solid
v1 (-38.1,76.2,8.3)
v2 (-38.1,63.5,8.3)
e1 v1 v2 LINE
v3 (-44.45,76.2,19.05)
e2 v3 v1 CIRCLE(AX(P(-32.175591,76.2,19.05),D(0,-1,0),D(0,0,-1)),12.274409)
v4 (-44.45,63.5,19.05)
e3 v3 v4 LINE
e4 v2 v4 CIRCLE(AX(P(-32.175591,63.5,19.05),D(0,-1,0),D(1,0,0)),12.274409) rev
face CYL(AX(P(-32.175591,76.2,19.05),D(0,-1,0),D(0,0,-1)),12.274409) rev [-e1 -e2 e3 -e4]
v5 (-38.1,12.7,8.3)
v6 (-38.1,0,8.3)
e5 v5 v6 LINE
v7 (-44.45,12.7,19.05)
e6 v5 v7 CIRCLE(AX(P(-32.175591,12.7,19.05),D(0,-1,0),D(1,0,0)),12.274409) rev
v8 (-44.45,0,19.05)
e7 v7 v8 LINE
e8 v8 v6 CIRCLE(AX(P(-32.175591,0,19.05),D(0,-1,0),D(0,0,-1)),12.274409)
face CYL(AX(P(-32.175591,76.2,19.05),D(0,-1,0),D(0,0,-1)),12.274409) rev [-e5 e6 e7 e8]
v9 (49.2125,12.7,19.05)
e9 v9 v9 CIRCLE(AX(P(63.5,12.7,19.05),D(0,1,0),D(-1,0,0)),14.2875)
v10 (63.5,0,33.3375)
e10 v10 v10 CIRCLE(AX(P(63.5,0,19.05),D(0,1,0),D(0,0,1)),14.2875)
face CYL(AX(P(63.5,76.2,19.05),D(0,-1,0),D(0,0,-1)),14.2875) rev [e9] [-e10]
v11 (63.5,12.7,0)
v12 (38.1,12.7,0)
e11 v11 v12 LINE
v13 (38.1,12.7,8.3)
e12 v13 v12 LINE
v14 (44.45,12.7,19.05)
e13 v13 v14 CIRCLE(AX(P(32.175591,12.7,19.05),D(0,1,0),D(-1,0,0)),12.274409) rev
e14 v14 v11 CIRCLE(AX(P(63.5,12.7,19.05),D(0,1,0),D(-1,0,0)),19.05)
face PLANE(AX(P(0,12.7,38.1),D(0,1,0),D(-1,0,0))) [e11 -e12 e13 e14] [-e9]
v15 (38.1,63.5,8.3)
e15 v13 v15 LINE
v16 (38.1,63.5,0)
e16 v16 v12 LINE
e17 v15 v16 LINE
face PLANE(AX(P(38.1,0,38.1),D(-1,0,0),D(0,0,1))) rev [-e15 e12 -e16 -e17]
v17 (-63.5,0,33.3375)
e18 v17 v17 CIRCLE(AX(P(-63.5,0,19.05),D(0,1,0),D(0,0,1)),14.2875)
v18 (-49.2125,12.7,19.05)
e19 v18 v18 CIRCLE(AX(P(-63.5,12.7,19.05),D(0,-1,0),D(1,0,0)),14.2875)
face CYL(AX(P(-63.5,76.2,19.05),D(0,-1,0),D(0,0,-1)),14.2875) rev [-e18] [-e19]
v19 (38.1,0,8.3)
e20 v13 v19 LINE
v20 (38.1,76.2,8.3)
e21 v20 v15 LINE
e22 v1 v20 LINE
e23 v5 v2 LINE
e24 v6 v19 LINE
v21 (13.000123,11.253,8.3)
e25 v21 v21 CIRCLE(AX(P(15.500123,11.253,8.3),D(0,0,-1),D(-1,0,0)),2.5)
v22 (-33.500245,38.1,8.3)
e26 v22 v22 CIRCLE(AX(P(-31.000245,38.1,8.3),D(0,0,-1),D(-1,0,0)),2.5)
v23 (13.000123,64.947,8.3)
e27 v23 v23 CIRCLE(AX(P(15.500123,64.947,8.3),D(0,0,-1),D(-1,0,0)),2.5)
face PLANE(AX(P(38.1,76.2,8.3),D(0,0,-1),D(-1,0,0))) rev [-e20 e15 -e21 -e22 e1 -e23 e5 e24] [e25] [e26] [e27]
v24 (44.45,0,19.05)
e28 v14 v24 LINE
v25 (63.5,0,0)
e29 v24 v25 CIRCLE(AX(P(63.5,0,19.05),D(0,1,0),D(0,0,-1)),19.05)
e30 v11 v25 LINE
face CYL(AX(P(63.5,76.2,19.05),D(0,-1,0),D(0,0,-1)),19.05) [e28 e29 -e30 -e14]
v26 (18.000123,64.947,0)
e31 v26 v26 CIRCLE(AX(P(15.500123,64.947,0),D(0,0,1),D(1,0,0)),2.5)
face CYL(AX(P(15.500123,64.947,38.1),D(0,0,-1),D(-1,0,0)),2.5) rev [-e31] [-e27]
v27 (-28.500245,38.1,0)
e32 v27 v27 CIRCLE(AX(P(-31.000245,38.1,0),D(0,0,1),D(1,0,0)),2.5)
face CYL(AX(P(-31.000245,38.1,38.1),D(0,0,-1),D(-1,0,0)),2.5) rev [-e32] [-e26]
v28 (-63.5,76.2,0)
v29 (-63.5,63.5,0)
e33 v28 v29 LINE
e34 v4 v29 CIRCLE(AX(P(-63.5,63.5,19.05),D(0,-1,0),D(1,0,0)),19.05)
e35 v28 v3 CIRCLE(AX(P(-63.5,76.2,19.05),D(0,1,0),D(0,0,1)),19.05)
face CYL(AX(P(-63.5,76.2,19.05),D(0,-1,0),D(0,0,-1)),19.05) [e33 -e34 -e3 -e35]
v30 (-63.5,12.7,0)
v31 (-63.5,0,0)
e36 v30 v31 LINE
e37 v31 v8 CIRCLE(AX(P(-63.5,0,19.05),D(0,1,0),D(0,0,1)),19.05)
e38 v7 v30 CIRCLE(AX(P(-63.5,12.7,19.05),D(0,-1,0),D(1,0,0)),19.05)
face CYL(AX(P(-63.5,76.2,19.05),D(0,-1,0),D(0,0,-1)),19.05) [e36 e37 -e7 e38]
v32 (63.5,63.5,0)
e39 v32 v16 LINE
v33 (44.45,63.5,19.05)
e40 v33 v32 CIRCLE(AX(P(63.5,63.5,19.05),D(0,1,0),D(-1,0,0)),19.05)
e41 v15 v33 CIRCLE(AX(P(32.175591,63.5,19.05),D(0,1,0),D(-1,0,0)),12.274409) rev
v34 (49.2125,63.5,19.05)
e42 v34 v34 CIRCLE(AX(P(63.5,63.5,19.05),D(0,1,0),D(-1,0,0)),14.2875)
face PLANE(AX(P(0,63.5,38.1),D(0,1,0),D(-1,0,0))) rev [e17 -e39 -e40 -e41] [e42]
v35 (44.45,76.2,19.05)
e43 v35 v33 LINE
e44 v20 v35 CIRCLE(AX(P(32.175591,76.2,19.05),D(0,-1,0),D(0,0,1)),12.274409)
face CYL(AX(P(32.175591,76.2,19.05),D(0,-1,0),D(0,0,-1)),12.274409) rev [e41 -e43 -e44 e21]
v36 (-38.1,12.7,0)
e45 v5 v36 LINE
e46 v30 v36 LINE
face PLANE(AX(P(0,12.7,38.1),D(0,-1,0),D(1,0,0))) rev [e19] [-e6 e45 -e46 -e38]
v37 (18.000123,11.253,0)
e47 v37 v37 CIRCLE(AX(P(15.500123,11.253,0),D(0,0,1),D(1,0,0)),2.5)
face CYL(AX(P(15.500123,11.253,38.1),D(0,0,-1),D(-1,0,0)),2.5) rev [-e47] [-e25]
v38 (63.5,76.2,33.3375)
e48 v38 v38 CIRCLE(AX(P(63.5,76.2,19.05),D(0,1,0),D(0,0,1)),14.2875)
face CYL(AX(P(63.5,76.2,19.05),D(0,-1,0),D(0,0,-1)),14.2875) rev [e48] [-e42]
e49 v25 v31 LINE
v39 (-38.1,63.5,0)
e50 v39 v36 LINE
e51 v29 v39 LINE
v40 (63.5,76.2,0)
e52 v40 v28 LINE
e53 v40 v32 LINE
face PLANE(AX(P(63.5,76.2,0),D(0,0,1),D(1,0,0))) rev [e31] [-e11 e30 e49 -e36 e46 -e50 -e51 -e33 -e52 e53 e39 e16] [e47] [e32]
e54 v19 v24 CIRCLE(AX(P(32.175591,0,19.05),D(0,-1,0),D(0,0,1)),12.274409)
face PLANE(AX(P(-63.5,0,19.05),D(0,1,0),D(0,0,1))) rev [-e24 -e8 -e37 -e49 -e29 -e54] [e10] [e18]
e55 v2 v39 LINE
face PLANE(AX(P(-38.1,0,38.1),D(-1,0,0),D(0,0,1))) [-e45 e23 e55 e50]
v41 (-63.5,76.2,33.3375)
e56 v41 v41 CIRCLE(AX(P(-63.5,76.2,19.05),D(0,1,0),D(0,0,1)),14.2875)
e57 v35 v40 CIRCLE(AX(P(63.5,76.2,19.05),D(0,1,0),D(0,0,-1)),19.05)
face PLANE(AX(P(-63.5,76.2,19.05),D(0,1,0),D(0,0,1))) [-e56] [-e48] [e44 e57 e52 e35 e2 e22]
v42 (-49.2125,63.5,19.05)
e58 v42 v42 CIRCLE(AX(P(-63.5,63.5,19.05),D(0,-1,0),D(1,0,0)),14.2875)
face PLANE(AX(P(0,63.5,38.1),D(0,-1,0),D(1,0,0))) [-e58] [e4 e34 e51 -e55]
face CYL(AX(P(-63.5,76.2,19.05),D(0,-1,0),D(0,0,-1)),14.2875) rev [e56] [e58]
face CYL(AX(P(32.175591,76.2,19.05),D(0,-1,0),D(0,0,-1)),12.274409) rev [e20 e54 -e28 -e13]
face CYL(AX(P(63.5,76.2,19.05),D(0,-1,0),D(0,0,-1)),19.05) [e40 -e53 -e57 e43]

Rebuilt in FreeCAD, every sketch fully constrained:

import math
import FreeCAD as App
import Part
import Sketcher

V = App.Vector
Q = App.Units.Quantity

doc = App.newDocument("Part")
body = doc.addObject("PartDesign::Body", "Body")

sketch1 = body.newObject("Sketcher::SketchObject", "Sketch")
sketch1.AttachmentSupport = (doc.getObject("XZ_Plane"), [""])
sketch1.MapMode = "FlatFace"
sketch1.addGeometry(Part.LineSegment(V(64, 0, 0), V(-64, 0, 0)), False)
sketch1.addGeometry(Part.ArcOfCircle(Part.Circle(V(-64, 19, 0), V(0, 0, 1), 19), math.radians(0), math.radians(270)), False)
sketch1.addGeometry(Part.ArcOfCircle(Part.Circle(V(-32, 19, 0), V(0, 0, 1), 12), math.radians(180), math.radians(241)), False)
sketch1.addGeometry(Part.LineSegment(V(-38, 8, 0), V(38, 8, 0)), False)
sketch1.addGeometry(Part.ArcOfCircle(Part.Circle(V(32, 19, 0), V(0, 0, 1), 12), math.radians(-61), math.radians(0)), False)
sketch1.addGeometry(Part.ArcOfCircle(Part.Circle(V(64, 19, 0), V(0, 0, 1), 19), math.radians(-90), math.radians(180)), False)
sketch1.addGeometry(Part.Circle(V(-64, 19, 0), V(0, 0, 1), 14), False)
sketch1.addGeometry(Part.Circle(V(64, 19, 0), V(0, 0, 1), 14), False)
sketch1.addConstraint(Sketcher.Constraint("Tangent", 0, 2, 1, 2))
sketch1.addConstraint(Sketcher.Constraint("Tangent", 1, 1, 2, 1))
sketch1.addConstraint(Sketcher.Constraint("Coincident", 2, 2, 3, 1))
sketch1.addConstraint(Sketcher.Constraint("Coincident", 3, 2, 4, 1))
sketch1.addConstraint(Sketcher.Constraint("Tangent", 4, 2, 5, 2))
sketch1.addConstraint(Sketcher.Constraint("Tangent", 5, 1, 0, 1))
sketch1.addConstraint(Sketcher.Constraint("Horizontal", 0))
sketch1.addConstraint(Sketcher.Constraint("Horizontal", 3))
sketch1.addConstraint(Sketcher.Constraint("Coincident", 6, 3, 1, 3))
sketch1.addConstraint(Sketcher.Constraint("Coincident", 7, 3, 5, 3))
sketch1.addConstraint(Sketcher.Constraint("Equal", 2, 4))
sketch1.addConstraint(Sketcher.Constraint("Equal", 1, 5))
sketch1.addConstraint(Sketcher.Constraint("Equal", 6, 7))
sketch1.addConstraint(Sketcher.Constraint("Symmetric", 0, 2, 5, 1, -1, 1))
sketch1.addConstraint(Sketcher.Constraint("Horizontal", 1, 3, 2, 3))
sketch1.addConstraint(Sketcher.Constraint("Horizontal", 2, 3, 4, 3))
sketch1.addConstraint(Sketcher.Constraint("DistanceX", 0, 2, 0, 1, Q("5 in")))
sketch1.addConstraint(Sketcher.Constraint("DistanceX", 3, 1, 3, 2, Q("3 in")))
sketch1.addConstraint(Sketcher.Constraint("Radius", 1, Q("0.75 in")))
sketch1.addConstraint(Sketcher.Constraint("Diameter", 6, Q("1.125 in")))
sketch1.addConstraint(Sketcher.Constraint("Radius", 2, Q("12.274409 mm")))
pad1 = body.newObject("PartDesign::Pad", "Pad")
pad1.Profile = sketch1
pad1.Length = Q("3 in")
pad1.Reversed = True

sketch2 = body.newObject("Sketcher::SketchObject", "Sketch001")
sketch2.AttachmentSupport = (doc.getObject("XY_Plane"), [""])
sketch2.MapMode = "FlatFace"
sketch2.addGeometry(Part.LineSegment(V(38.1, 12.7, 0), V(38.1, 63.5, 0)), False)
sketch2.addGeometry(Part.LineSegment(V(38.1, 63.5, 0), V(168.1, 63.5, 0)), False)
sketch2.addGeometry(Part.LineSegment(V(168.1, 63.5, 0), V(168.1, 12.7, 0)), False)
sketch2.addGeometry(Part.LineSegment(V(168.1, 12.7, 0), V(38.1, 12.7, 0)), False)
sketch2.addGeometry(Part.LineSegment(V(-38.1, 63.5, 0), V(-38.1, 12.7, 0)), False)
sketch2.addGeometry(Part.LineSegment(V(-38.1, 12.7, 0), V(-132.2, 12.7, 0)), False)
sketch2.addGeometry(Part.LineSegment(V(-132.2, 12.7, 0), V(-132.2, 63.5, 0)), False)
sketch2.addGeometry(Part.LineSegment(V(-132.2, 63.5, 0), V(-38.1, 63.5, 0)), False)
sketch2.addGeometry(Part.Circle(V(15.5, 64.9, 0), V(0, 0, 1), 2.5), False)
sketch2.addGeometry(Part.Circle(V(15.5, 11.3, 0), V(0, 0, 1), 2.5), False)
sketch2.addGeometry(Part.Circle(V(-31, 38.1, 0), V(0, 0, 1), 2.5), False)
sketch2.addConstraint(Sketcher.Constraint("Coincident", 0, 2, 1, 1))
sketch2.addConstraint(Sketcher.Constraint("Coincident", 1, 2, 2, 1))
sketch2.addConstraint(Sketcher.Constraint("Coincident", 2, 2, 3, 1))
sketch2.addConstraint(Sketcher.Constraint("Coincident", 3, 2, 0, 1))
sketch2.addConstraint(Sketcher.Constraint("Coincident", 4, 2, 5, 1))
sketch2.addConstraint(Sketcher.Constraint("Coincident", 5, 2, 6, 1))
sketch2.addConstraint(Sketcher.Constraint("Coincident", 6, 2, 7, 1))
sketch2.addConstraint(Sketcher.Constraint("Coincident", 7, 2, 4, 1))
sketch2.addConstraint(Sketcher.Constraint("Vertical", 0))
sketch2.addConstraint(Sketcher.Constraint("Horizontal", 1))
sketch2.addConstraint(Sketcher.Constraint("Vertical", 2))
sketch2.addConstraint(Sketcher.Constraint("Horizontal", 3))
sketch2.addConstraint(Sketcher.Constraint("Vertical", 4))
sketch2.addConstraint(Sketcher.Constraint("Horizontal", 5))
sketch2.addConstraint(Sketcher.Constraint("Vertical", 6))
sketch2.addConstraint(Sketcher.Constraint("Horizontal", 7))
sketch2.addConstraint(Sketcher.Constraint("Equal", 8, 9))
sketch2.addConstraint(Sketcher.Constraint("Equal", 9, 10))
sketch2.addConstraint(Sketcher.Constraint("Symmetric", 3, 2, 4, 2, -2))
sketch2.addConstraint(Sketcher.Constraint("Horizontal", 1, 2, 6, 2))
sketch2.addConstraint(Sketcher.Constraint("Vertical", 8, 3, 9, 3))
sketch2.addConstraint(Sketcher.Constraint("DistanceY", 0, 1, 0, 2, Q("2 in")))
sketch2.addConstraint(Sketcher.Constraint("DistanceY", 10, 3, 0, 2, Q("1 in")))
sketch2.addConstraint(Sketcher.Constraint("DistanceX", 4, 2, 3, 2, Q("3 in")))
sketch2.addConstraint(Sketcher.Constraint("DistanceY", -1, 1, 10, 3, Q("1.5 in")))
sketch2.addConstraint(Sketcher.Constraint("Diameter", 8, Q("5 mm")))
sketch2.addConstraint(Sketcher.Constraint("DistanceX", 1, 1, 1, 2, Q("129.99083 mm")))
sketch2.addConstraint(Sketcher.Constraint("DistanceX", 5, 2, 5, 1, Q("94.099541 mm")))
sketch2.addConstraint(Sketcher.Constraint("DistanceY", -1, 1, 8, 3, Q("64.947 mm")))
sketch2.addConstraint(Sketcher.Constraint("DistanceY", -1, 1, 9, 3, Q("11.253 mm")))
sketch2.addConstraint(Sketcher.Constraint("DistanceX", 10, 3, 8, 3, Q("46.500368 mm")))
sketch2.addConstraint(Sketcher.Constraint("DistanceX", -1, 1, 8, 3, Q("15.500123 mm")))
pocket1 = body.newObject("PartDesign::Pocket", "Pocket")
pocket1.Profile = sketch2
pocket1.Type = "ThroughAll"
pocket1.Midplane = True

doc.recompute()
